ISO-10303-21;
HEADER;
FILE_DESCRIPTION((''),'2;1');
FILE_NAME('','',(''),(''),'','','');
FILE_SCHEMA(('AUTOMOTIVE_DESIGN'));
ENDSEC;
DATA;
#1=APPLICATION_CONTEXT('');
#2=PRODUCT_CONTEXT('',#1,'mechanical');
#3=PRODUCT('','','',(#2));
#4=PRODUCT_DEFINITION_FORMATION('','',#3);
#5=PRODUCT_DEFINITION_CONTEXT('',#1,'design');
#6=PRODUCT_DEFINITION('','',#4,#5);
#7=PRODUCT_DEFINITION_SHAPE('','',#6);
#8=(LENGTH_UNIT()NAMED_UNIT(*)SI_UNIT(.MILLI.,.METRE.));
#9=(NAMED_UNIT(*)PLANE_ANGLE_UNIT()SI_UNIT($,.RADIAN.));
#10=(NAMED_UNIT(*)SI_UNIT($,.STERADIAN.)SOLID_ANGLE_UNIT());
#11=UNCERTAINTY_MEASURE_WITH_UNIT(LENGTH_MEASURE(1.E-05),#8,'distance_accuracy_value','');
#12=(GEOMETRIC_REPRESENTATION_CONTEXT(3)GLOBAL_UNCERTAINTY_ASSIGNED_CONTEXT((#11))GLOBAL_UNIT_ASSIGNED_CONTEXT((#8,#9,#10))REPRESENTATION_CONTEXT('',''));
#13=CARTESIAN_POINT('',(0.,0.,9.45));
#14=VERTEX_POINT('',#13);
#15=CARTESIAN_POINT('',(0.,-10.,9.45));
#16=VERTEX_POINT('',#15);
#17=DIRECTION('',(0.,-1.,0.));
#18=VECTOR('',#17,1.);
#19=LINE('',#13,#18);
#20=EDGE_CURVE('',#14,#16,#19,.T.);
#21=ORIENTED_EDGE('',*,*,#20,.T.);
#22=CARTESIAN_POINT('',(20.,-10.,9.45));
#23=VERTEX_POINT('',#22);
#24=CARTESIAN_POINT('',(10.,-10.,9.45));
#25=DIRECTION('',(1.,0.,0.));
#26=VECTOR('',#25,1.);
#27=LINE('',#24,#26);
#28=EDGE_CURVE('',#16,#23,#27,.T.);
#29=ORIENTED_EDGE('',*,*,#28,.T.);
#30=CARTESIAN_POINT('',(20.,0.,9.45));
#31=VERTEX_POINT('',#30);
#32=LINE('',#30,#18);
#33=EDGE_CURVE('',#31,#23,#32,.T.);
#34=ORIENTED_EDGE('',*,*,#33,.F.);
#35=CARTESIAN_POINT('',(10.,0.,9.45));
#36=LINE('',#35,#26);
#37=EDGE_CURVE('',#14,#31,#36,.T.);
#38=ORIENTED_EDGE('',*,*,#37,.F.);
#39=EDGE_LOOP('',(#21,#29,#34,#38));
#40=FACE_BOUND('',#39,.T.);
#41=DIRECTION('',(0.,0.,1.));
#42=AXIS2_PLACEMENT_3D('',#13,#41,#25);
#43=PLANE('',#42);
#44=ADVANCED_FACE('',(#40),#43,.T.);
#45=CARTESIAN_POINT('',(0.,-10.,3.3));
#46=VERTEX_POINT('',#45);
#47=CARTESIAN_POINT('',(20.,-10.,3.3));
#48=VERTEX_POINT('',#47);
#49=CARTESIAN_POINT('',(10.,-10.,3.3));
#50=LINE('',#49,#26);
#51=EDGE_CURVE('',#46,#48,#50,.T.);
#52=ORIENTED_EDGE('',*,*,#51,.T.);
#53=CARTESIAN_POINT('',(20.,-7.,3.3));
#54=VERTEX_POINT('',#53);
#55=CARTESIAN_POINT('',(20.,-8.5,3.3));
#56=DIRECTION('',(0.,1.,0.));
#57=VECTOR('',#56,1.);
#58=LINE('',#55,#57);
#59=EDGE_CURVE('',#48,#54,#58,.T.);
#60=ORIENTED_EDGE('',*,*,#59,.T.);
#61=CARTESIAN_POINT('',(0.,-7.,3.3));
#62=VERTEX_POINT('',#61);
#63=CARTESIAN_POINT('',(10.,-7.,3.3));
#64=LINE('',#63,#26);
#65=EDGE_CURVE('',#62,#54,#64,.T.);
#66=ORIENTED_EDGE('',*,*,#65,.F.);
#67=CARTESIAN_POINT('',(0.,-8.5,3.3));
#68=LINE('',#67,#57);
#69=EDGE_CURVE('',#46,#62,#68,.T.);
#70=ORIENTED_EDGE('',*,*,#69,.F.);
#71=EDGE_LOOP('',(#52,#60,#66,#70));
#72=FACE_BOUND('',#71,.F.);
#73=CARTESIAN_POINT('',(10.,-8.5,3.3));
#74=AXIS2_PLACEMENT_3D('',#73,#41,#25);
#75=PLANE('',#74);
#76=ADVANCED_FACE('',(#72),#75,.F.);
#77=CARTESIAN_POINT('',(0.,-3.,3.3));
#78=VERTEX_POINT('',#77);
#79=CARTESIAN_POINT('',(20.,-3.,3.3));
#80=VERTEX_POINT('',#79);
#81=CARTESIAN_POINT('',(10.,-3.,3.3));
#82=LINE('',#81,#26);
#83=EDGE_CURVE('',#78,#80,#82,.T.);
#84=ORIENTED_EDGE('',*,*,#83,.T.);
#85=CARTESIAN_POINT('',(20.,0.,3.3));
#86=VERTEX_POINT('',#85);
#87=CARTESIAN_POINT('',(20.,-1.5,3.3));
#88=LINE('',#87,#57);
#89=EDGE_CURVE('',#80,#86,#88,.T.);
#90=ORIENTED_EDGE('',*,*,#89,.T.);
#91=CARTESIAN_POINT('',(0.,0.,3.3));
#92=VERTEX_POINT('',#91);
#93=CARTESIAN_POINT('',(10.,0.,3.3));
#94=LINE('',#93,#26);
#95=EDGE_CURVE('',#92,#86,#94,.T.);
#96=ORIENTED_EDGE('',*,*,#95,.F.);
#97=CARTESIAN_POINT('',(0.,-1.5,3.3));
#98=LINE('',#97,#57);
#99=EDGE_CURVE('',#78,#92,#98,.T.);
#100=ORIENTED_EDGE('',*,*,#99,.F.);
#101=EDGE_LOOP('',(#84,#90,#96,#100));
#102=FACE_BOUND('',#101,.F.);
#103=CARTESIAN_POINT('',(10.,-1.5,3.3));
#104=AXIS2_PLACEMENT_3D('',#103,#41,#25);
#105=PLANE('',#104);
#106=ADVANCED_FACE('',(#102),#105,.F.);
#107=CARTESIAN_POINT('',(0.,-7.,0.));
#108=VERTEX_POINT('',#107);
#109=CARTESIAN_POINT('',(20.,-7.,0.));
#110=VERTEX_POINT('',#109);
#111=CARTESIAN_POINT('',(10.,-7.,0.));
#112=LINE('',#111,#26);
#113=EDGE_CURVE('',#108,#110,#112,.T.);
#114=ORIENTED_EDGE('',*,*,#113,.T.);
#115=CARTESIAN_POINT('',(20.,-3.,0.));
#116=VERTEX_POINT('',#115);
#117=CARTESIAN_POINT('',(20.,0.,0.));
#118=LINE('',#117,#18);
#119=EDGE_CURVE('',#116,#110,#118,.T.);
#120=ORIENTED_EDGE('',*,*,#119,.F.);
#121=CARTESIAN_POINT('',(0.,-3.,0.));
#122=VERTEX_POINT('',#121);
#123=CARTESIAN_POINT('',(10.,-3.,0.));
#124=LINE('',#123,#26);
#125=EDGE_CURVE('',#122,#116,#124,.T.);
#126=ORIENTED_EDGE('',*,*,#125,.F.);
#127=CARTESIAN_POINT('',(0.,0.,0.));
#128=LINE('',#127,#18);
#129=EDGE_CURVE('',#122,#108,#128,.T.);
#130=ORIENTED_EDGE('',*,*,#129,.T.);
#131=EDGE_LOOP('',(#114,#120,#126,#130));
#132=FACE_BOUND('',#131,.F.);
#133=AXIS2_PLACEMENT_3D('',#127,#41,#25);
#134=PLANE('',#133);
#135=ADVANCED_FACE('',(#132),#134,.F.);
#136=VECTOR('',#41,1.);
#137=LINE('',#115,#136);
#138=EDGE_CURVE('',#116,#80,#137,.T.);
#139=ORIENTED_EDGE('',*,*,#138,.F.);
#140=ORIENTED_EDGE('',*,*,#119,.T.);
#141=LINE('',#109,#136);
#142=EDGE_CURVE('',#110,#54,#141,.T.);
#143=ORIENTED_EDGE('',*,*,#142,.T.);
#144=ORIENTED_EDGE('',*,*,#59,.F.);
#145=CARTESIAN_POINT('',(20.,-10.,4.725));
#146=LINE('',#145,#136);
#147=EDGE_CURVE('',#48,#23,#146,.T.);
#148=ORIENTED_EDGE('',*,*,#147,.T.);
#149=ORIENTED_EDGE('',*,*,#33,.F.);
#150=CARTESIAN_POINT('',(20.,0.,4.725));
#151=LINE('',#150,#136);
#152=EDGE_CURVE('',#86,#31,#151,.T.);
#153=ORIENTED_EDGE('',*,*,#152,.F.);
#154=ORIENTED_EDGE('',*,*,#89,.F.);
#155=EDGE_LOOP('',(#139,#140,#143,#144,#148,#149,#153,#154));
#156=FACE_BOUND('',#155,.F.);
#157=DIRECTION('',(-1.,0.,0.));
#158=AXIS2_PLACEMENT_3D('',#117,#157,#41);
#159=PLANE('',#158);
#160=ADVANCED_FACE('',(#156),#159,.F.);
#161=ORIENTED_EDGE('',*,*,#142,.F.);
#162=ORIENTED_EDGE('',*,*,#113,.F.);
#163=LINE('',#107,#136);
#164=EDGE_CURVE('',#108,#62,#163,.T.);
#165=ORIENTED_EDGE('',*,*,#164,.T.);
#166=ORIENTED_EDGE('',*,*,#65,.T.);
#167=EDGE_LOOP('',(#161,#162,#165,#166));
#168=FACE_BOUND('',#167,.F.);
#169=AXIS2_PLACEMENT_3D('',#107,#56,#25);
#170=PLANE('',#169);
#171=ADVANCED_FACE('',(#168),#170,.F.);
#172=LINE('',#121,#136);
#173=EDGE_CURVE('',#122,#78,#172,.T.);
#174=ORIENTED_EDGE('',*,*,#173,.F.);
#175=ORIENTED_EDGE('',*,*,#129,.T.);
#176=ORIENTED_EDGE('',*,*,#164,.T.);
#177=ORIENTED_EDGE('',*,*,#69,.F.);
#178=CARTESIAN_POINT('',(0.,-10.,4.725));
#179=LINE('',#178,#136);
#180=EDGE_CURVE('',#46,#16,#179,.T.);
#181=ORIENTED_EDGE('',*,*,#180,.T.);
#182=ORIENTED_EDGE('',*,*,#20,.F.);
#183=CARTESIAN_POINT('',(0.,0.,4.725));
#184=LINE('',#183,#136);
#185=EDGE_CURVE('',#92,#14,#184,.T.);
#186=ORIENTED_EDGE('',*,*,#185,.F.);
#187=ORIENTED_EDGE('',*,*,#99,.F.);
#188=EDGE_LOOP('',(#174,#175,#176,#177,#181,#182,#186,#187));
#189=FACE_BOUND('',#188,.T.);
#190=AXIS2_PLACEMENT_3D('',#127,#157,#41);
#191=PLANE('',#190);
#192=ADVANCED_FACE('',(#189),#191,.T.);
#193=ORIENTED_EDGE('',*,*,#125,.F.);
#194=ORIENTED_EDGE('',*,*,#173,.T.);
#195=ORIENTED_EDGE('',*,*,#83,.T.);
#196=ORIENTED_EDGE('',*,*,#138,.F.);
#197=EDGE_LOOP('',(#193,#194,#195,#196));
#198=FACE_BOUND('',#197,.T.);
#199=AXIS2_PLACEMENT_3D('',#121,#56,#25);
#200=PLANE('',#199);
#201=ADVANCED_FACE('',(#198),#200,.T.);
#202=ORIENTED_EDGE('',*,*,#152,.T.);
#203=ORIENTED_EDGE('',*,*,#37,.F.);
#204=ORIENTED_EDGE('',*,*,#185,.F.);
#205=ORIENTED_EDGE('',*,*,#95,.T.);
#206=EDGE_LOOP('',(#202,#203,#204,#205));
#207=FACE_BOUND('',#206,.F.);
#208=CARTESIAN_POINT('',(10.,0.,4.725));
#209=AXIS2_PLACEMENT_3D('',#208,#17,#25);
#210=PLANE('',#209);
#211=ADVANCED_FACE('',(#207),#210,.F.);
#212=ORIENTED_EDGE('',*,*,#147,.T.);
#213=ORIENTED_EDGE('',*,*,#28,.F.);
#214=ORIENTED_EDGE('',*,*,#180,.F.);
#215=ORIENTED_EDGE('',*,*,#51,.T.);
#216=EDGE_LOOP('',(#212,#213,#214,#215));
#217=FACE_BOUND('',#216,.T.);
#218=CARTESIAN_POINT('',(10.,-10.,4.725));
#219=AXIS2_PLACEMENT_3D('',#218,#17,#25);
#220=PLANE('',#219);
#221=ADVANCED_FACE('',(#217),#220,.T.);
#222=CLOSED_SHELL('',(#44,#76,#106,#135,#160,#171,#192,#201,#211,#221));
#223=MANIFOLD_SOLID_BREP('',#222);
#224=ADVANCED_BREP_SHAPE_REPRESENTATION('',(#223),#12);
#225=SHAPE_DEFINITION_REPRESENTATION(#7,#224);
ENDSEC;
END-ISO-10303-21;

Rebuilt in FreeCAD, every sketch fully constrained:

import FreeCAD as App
import Part
import Sketcher


def add_polygon(sketch, points):
    """Adds a closed chain of lines whose ends are joined by coincident constraints."""
    first, n = sketch.GeometryCount, len(points)
    for a, b in zip(points, points[1:] + points[:1]):
        sketch.addGeometry(Part.LineSegment(App.Vector(*a, 0), App.Vector(*b, 0)), False)
    for i in range(n):
        sketch.addConstraint(Sketcher.Constraint("Coincident", first + i, 2, first + (i + 1) % n, 1))

doc = App.newDocument("Part")
body = doc.addObject("PartDesign::Body", "Body")

sketch1 = body.newObject("Sketcher::SketchObject", "Sketch")
sketch1.AttachmentSupport = (doc.getObject("XZ_Plane"), [""])
sketch1.MapMode = "FlatFace"
add_polygon(sketch1, [(0, 9), (0, 0), (20, 0), (20, 9)])
sketch1.addConstraint([
    Sketcher.Constraint("Vertical", 0),
    Sketcher.Constraint("Horizontal", 1),
    Sketcher.Constraint("Vertical", 2),
    Sketcher.Constraint("Horizontal", 3),
    Sketcher.Constraint("Coincident", 0, 2, -1, 1),
    Sketcher.Constraint("DistanceX", 1, 1, 1, 2, 20.0),
    Sketcher.Constraint("DistanceY", 0, 2, 0, 1, 9.45),
])
pad1 = body.newObject("PartDesign::Pad", "Pad")
pad1.Profile = sketch1
pad1.Length = 10

sketch2 = body.newObject("Sketcher::SketchObject", "Sketch001")
sketch2.AttachmentSupport = (doc.getObject("XY_Plane"), [""])
sketch2.MapMode = "FlatFace"
add_polygon(sketch2, [(0, -7), (0, -10), (20, -10), (20, -7)])
add_polygon(sketch2, [(0, 0), (0, -3), (20, -3), (20, 0)])
sketch2.addConstraint([
    Sketcher.Constraint("Vertical", 0),
    Sketcher.Constraint("Horizontal", 1),
    Sketcher.Constraint("Vertical", 2),
    Sketcher.Constraint("Horizontal", 3),
    Sketcher.Constraint("Vertical", 4),
    Sketcher.Constraint("Horizontal", 5),
    Sketcher.Constraint("Vertical", 6),
    Sketcher.Constraint("Horizontal", 7),
    Sketcher.Constraint("Coincident", 7, 2, -1, 1),
    Sketcher.Constraint("PointOnObject", 0, 2, -2),
    Sketcher.Constraint("Vertical", 2, 2, 5, 2),
    Sketcher.Constraint("Equal", 2, 4),
    Sketcher.Constraint("DistanceX", 1, 1, 1, 2, 20.0),
    Sketcher.Constraint("DistanceY", 0, 2, 0, 1, 3.0),
    Sketcher.Constraint("DistanceY", 0, 2, -1, 1, 10.0),
])
pocket1 = body.newObject("PartDesign::Pocket", "Pocket")
pocket1.Profile = sketch2
pocket1.Length = 3.3
pocket1.Reversed = True

doc.recompute()
